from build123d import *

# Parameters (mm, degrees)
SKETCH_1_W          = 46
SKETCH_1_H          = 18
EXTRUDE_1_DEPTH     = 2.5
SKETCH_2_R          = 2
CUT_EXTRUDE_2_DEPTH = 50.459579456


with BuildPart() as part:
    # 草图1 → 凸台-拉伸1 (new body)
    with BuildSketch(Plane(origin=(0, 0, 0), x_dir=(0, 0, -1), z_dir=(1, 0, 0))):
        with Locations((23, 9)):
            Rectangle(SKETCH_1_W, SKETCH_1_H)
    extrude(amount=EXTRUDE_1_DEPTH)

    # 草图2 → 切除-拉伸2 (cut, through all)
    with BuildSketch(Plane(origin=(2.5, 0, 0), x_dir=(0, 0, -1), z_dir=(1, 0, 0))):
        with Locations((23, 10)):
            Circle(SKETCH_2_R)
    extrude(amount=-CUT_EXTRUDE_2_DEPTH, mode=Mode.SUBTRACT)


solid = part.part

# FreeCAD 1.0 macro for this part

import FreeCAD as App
import Part
import Sketcher
from FreeCAD import Vector


def add_polygon(sketch, points):
    """Adds a closed chain of lines whose ends are joined by coincident constraints."""
    first, n = sketch.GeometryCount, len(points)
    for a, b in zip(points, points[1:] + points[:1]):
        sketch.addGeometry(Part.LineSegment(App.Vector(*a, 0), App.Vector(*b, 0)), False)
    for i in range(n):
        sketch.addConstraint(Sketcher.Constraint("Coincident", first + i, 2, first + (i + 1) % n, 1))

doc = App.newDocument("Part")
body = doc.addObject("PartDesign::Body", "Body")

sketch1 = body.newObject("Sketcher::SketchObject", "Sketch")
sketch1.AttachmentSupport = (doc.getObject("YZ_Plane"), [""])
sketch1.MapMode = "FlatFace"
add_polygon(sketch1, [(18, 0), (0, 0), (0, -46), (18, -46)])
sketch1.addConstraint([
    Sketcher.Constraint("Horizontal", 0),
    Sketcher.Constraint("Vertical", 1),
    Sketcher.Constraint("Horizontal", 2),
    Sketcher.Constraint("Vertical", 3),
    Sketcher.Constraint("Coincident", 0, 2, -1, 1),
    Sketcher.Constraint("DistanceX", 0, 2, 0, 1, 18.0),
    Sketcher.Constraint("DistanceY", 1, 2, 1, 1, 46.0),
])
pad1 = body.newObject("PartDesign::Pad", "Pad")
pad1.Profile = sketch1
pad1.Length = 2.5

sketch2 = body.newObject("Sketcher::SketchObject", "Sketch001")
sketch2.AttachmentSupport = (doc.getObject("YZ_Plane"), [""])
sketch2.MapMode = "FlatFace"
sketch2.AttachmentOffset = App.Placement(Vector(0, 0, 2.5), App.Rotation())
sketch2.addGeometry(Part.Circle(Vector(10, -23, 0), Vector(0, 0, 1), 2), False)
sketch2.addConstraint([
    Sketcher.Constraint("Diameter", 0, 4.0),
    Sketcher.Constraint("DistanceX", -1, 1, 0, 3, 10.0),
    Sketcher.Constraint("DistanceY", 0, 3, -1, 1, 23.0),
])
pocket1 = body.newObject("PartDesign::Pocket", "Pocket")
pocket1.Profile = sketch2
pocket1.Type = "ThroughAll"

doc.recompute()
